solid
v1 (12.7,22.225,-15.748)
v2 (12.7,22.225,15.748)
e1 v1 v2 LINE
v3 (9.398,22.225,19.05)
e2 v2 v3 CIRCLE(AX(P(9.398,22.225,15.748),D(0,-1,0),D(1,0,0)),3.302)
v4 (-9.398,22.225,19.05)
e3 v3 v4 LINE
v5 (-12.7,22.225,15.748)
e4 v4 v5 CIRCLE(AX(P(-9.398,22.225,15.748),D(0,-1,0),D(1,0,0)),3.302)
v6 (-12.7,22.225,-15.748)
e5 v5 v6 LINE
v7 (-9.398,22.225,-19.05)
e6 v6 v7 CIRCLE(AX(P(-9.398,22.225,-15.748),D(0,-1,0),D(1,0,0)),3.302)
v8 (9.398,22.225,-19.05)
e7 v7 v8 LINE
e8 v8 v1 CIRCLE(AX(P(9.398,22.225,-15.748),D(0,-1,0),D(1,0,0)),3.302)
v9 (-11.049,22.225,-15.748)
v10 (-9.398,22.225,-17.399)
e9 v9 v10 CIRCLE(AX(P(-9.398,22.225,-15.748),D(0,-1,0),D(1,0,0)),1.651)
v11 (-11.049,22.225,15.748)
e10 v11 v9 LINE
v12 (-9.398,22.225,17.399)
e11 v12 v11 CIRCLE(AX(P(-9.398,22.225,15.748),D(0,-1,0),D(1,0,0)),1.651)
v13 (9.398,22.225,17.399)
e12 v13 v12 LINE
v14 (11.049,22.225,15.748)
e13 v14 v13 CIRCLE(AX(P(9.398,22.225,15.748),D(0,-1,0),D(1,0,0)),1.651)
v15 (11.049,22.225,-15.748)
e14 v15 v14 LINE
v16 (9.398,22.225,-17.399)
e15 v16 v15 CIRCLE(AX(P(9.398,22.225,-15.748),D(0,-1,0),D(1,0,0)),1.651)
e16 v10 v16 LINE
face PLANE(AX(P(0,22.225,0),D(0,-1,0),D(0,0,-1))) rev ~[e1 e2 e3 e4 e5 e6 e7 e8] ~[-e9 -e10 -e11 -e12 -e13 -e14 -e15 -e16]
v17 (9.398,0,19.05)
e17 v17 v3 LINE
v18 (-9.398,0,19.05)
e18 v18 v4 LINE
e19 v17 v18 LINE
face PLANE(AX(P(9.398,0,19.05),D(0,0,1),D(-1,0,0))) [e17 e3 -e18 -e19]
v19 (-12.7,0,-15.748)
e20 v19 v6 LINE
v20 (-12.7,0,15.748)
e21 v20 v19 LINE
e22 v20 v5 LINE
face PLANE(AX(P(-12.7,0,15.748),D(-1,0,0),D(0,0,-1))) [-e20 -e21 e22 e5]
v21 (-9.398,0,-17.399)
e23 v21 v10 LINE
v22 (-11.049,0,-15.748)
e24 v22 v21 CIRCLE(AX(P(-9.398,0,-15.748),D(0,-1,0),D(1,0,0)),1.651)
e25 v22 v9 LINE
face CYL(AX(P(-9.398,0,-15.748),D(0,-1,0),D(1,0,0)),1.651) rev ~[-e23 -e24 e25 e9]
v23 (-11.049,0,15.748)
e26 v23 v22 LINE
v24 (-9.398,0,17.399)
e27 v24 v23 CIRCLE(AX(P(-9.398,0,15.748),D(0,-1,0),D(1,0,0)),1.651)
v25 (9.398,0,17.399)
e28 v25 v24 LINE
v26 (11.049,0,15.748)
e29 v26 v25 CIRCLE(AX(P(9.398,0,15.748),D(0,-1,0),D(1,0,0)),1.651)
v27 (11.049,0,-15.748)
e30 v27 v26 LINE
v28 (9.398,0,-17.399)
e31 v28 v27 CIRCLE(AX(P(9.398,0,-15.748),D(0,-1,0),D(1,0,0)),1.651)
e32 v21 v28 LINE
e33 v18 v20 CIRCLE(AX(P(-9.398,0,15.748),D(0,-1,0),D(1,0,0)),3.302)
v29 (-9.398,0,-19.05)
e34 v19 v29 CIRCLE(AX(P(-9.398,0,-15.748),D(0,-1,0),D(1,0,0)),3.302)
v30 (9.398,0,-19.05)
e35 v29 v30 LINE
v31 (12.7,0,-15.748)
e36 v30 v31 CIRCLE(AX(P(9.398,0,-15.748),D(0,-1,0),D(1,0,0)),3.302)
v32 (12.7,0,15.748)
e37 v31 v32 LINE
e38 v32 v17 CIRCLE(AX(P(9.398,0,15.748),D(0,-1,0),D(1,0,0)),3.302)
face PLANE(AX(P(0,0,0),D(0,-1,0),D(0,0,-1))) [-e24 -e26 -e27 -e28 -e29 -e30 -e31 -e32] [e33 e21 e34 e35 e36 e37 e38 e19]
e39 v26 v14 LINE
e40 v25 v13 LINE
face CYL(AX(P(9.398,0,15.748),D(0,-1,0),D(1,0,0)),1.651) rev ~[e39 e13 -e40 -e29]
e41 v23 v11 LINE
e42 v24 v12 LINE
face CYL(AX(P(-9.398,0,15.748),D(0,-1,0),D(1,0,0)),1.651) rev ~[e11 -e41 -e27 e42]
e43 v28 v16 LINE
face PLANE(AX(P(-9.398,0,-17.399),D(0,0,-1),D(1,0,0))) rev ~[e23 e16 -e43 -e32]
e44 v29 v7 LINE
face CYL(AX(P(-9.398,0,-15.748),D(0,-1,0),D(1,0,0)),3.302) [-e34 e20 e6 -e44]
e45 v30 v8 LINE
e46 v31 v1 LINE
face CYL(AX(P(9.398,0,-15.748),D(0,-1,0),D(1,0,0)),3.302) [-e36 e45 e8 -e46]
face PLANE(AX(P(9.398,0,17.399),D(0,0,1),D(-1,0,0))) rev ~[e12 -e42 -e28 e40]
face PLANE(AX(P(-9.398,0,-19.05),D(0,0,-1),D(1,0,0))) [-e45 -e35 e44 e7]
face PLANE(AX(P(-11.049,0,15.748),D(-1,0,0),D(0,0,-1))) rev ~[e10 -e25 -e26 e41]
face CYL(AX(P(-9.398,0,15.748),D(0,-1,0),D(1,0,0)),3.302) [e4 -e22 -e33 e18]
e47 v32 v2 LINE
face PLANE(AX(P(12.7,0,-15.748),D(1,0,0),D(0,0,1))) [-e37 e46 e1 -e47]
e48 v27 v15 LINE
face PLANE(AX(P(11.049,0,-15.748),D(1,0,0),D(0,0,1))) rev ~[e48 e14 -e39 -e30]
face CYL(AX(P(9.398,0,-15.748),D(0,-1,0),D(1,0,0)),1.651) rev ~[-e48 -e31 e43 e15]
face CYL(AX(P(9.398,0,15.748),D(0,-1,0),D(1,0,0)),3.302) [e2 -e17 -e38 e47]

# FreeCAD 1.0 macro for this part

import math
import FreeCAD as App
import Part
import Sketcher

V = App.Vector
Q = App.Units.Quantity

doc = App.newDocument("Part")
params = doc.addObject("Spreadsheet::Sheet", "Params")
for row, (alias, value) in enumerate([
    ("sketch1_radius", "0.13 in"),
    ("sketch1_radius2", "0.065 in"),
    ("sketch1_height", "1.24 in"),
    ("pad1_length", "0.875 in"),
], start=1):
    params.set(f"A{row}", alias)
    params.set(f"B{row}", "=" + value)
    params.setAlias(f"B{row}", alias)

body = doc.addObject("PartDesign::Body", "Body")

# Sketch on XZ plane
sketch1 = doc.addObject("Sketcher::SketchObject", "Sketch")
body.addObject(sketch1)
sketch1.AttachmentSupport = (doc.XZ_Plane, [""])
sketch1.MapMode = "FlatFace"
sketch1.addGeometry([
    Part.LineSegment(V(-12.7, 15.7, 0), V(-12.7, -15.7, 0)),  # 0
    Part.ArcOfCircle(Part.Circle(V(-9.4, -15.7, 0), V(0, 0, 1), 3.3), math.radians(180), math.radians(270)),  # 1
    Part.LineSegment(V(-9.4, -19.1, 0), V(9.4, -19.1, 0)),  # 2
    Part.ArcOfCircle(Part.Circle(V(9.4, -15.7, 0), V(0, 0, 1), 3.3), math.radians(-90), math.radians(0)),  # 3
    Part.LineSegment(V(12.7, -15.7, 0), V(12.7, 15.7, 0)),  # 4
    Part.ArcOfCircle(Part.Circle(V(9.4, 15.7, 0), V(0, 0, 1), 3.3), math.radians(0), math.radians(90)),  # 5
    Part.LineSegment(V(9.4, 19.1, 0), V(-9.4, 19.1, 0)),  # 6
    Part.ArcOfCircle(Part.Circle(V(-9.4, 15.7, 0), V(0, 0, 1), 3.3), math.radians(90), math.radians(180)),  # 7
    Part.ArcOfCircle(Part.Circle(V(-9.4, -15.7, 0), V(0, 0, 1), 1.7), math.radians(180), math.radians(270)),  # 8
    Part.LineSegment(V(-11, -15.7, 0), V(-11, 15.7, 0)),  # 9
    Part.ArcOfCircle(Part.Circle(V(-9.4, 15.7, 0), V(0, 0, 1), 1.7), math.radians(90), math.radians(180)),  # 10
    Part.LineSegment(V(-9.4, 17.4, 0), V(9.4, 17.4, 0)),  # 11
    Part.ArcOfCircle(Part.Circle(V(9.4, 15.7, 0), V(0, 0, 1), 1.7), math.radians(0), math.radians(90)),  # 12
    Part.LineSegment(V(11, 15.7, 0), V(11, -15.7, 0)),  # 13
    Part.ArcOfCircle(Part.Circle(V(9.4, -15.7, 0), V(0, 0, 1), 1.7), math.radians(-90), math.radians(0)),  # 14
    Part.LineSegment(V(9.4, -17.4, 0), V(-9.4, -17.4, 0)),  # 15
], False)
sketch1.addConstraint([
    Sketcher.Constraint("Tangent", 0, 2, 1, 1),
    Sketcher.Constraint("Tangent", 1, 2, 2, 1),
    Sketcher.Constraint("Tangent", 2, 2, 3, 1),
    Sketcher.Constraint("Tangent", 3, 2, 4, 1),
    Sketcher.Constraint("Tangent", 4, 2, 5, 1),
    Sketcher.Constraint("Tangent", 5, 2, 6, 1),
    Sketcher.Constraint("Tangent", 6, 2, 7, 1),
    Sketcher.Constraint("Tangent", 7, 2, 0, 1),
    Sketcher.Constraint("Tangent", 8, 1, 9, 1),
    Sketcher.Constraint("Tangent", 9, 2, 10, 2),
    Sketcher.Constraint("Tangent", 10, 1, 11, 1),
    Sketcher.Constraint("Tangent", 11, 2, 12, 2),
    Sketcher.Constraint("Tangent", 12, 1, 13, 1),
    Sketcher.Constraint("Tangent", 13, 2, 14, 2),
    Sketcher.Constraint("Tangent", 14, 1, 15, 1),
    Sketcher.Constraint("Tangent", 15, 2, 8, 2),
    Sketcher.Constraint("Vertical", 0),
    Sketcher.Constraint("Horizontal", 2),
    Sketcher.Constraint("Vertical", 4),
    Sketcher.Constraint("Horizontal", 6),
    Sketcher.Constraint("Vertical", 9),
    Sketcher.Constraint("Horizontal", 11),
    Sketcher.Constraint("Vertical", 13),
    Sketcher.Constraint("Horizontal", 15),
    Sketcher.Constraint("Coincident", 8, 3, 1, 3),
    Sketcher.Constraint("Coincident", 10, 3, 7, 3),
    Sketcher.Constraint("Coincident", 12, 3, 5, 3),
    Sketcher.Constraint("Equal", 1, 3),
    Sketcher.Constraint("Equal", 3, 5),
    Sketcher.Constraint("Equal", 5, 7),
    Sketcher.Constraint("Equal", 12, 14),
    Sketcher.Constraint("Symmetric", 1, 3, 5, 3, -1, 1),
    Sketcher.Constraint("DistanceX", 0, 2, -1, 1, Q("0.5 in")),
    Sketcher.Constraint("Radius", 1, Q("0.13 in")),
    Sketcher.Constraint("Radius", 8, Q("0.065 in")),
    Sketcher.Constraint("DistanceY", 0, 2, 0, 1, Q("1.24 in")),
])
sketch1.setExpression("Constraints[33]", "Params.sketch1_radius")
sketch1.setExpression("Constraints[34]", "Params.sketch1_radius2")
sketch1.setExpression("Constraints[35]", "Params.sketch1_height")
pad1 = doc.addObject("PartDesign::Pad", "Pad")
body.addObject(pad1)
pad1.Profile = sketch1
pad1.setExpression("Length", "Params.pad1_length")
pad1.Reversed = True

doc.recompute()
